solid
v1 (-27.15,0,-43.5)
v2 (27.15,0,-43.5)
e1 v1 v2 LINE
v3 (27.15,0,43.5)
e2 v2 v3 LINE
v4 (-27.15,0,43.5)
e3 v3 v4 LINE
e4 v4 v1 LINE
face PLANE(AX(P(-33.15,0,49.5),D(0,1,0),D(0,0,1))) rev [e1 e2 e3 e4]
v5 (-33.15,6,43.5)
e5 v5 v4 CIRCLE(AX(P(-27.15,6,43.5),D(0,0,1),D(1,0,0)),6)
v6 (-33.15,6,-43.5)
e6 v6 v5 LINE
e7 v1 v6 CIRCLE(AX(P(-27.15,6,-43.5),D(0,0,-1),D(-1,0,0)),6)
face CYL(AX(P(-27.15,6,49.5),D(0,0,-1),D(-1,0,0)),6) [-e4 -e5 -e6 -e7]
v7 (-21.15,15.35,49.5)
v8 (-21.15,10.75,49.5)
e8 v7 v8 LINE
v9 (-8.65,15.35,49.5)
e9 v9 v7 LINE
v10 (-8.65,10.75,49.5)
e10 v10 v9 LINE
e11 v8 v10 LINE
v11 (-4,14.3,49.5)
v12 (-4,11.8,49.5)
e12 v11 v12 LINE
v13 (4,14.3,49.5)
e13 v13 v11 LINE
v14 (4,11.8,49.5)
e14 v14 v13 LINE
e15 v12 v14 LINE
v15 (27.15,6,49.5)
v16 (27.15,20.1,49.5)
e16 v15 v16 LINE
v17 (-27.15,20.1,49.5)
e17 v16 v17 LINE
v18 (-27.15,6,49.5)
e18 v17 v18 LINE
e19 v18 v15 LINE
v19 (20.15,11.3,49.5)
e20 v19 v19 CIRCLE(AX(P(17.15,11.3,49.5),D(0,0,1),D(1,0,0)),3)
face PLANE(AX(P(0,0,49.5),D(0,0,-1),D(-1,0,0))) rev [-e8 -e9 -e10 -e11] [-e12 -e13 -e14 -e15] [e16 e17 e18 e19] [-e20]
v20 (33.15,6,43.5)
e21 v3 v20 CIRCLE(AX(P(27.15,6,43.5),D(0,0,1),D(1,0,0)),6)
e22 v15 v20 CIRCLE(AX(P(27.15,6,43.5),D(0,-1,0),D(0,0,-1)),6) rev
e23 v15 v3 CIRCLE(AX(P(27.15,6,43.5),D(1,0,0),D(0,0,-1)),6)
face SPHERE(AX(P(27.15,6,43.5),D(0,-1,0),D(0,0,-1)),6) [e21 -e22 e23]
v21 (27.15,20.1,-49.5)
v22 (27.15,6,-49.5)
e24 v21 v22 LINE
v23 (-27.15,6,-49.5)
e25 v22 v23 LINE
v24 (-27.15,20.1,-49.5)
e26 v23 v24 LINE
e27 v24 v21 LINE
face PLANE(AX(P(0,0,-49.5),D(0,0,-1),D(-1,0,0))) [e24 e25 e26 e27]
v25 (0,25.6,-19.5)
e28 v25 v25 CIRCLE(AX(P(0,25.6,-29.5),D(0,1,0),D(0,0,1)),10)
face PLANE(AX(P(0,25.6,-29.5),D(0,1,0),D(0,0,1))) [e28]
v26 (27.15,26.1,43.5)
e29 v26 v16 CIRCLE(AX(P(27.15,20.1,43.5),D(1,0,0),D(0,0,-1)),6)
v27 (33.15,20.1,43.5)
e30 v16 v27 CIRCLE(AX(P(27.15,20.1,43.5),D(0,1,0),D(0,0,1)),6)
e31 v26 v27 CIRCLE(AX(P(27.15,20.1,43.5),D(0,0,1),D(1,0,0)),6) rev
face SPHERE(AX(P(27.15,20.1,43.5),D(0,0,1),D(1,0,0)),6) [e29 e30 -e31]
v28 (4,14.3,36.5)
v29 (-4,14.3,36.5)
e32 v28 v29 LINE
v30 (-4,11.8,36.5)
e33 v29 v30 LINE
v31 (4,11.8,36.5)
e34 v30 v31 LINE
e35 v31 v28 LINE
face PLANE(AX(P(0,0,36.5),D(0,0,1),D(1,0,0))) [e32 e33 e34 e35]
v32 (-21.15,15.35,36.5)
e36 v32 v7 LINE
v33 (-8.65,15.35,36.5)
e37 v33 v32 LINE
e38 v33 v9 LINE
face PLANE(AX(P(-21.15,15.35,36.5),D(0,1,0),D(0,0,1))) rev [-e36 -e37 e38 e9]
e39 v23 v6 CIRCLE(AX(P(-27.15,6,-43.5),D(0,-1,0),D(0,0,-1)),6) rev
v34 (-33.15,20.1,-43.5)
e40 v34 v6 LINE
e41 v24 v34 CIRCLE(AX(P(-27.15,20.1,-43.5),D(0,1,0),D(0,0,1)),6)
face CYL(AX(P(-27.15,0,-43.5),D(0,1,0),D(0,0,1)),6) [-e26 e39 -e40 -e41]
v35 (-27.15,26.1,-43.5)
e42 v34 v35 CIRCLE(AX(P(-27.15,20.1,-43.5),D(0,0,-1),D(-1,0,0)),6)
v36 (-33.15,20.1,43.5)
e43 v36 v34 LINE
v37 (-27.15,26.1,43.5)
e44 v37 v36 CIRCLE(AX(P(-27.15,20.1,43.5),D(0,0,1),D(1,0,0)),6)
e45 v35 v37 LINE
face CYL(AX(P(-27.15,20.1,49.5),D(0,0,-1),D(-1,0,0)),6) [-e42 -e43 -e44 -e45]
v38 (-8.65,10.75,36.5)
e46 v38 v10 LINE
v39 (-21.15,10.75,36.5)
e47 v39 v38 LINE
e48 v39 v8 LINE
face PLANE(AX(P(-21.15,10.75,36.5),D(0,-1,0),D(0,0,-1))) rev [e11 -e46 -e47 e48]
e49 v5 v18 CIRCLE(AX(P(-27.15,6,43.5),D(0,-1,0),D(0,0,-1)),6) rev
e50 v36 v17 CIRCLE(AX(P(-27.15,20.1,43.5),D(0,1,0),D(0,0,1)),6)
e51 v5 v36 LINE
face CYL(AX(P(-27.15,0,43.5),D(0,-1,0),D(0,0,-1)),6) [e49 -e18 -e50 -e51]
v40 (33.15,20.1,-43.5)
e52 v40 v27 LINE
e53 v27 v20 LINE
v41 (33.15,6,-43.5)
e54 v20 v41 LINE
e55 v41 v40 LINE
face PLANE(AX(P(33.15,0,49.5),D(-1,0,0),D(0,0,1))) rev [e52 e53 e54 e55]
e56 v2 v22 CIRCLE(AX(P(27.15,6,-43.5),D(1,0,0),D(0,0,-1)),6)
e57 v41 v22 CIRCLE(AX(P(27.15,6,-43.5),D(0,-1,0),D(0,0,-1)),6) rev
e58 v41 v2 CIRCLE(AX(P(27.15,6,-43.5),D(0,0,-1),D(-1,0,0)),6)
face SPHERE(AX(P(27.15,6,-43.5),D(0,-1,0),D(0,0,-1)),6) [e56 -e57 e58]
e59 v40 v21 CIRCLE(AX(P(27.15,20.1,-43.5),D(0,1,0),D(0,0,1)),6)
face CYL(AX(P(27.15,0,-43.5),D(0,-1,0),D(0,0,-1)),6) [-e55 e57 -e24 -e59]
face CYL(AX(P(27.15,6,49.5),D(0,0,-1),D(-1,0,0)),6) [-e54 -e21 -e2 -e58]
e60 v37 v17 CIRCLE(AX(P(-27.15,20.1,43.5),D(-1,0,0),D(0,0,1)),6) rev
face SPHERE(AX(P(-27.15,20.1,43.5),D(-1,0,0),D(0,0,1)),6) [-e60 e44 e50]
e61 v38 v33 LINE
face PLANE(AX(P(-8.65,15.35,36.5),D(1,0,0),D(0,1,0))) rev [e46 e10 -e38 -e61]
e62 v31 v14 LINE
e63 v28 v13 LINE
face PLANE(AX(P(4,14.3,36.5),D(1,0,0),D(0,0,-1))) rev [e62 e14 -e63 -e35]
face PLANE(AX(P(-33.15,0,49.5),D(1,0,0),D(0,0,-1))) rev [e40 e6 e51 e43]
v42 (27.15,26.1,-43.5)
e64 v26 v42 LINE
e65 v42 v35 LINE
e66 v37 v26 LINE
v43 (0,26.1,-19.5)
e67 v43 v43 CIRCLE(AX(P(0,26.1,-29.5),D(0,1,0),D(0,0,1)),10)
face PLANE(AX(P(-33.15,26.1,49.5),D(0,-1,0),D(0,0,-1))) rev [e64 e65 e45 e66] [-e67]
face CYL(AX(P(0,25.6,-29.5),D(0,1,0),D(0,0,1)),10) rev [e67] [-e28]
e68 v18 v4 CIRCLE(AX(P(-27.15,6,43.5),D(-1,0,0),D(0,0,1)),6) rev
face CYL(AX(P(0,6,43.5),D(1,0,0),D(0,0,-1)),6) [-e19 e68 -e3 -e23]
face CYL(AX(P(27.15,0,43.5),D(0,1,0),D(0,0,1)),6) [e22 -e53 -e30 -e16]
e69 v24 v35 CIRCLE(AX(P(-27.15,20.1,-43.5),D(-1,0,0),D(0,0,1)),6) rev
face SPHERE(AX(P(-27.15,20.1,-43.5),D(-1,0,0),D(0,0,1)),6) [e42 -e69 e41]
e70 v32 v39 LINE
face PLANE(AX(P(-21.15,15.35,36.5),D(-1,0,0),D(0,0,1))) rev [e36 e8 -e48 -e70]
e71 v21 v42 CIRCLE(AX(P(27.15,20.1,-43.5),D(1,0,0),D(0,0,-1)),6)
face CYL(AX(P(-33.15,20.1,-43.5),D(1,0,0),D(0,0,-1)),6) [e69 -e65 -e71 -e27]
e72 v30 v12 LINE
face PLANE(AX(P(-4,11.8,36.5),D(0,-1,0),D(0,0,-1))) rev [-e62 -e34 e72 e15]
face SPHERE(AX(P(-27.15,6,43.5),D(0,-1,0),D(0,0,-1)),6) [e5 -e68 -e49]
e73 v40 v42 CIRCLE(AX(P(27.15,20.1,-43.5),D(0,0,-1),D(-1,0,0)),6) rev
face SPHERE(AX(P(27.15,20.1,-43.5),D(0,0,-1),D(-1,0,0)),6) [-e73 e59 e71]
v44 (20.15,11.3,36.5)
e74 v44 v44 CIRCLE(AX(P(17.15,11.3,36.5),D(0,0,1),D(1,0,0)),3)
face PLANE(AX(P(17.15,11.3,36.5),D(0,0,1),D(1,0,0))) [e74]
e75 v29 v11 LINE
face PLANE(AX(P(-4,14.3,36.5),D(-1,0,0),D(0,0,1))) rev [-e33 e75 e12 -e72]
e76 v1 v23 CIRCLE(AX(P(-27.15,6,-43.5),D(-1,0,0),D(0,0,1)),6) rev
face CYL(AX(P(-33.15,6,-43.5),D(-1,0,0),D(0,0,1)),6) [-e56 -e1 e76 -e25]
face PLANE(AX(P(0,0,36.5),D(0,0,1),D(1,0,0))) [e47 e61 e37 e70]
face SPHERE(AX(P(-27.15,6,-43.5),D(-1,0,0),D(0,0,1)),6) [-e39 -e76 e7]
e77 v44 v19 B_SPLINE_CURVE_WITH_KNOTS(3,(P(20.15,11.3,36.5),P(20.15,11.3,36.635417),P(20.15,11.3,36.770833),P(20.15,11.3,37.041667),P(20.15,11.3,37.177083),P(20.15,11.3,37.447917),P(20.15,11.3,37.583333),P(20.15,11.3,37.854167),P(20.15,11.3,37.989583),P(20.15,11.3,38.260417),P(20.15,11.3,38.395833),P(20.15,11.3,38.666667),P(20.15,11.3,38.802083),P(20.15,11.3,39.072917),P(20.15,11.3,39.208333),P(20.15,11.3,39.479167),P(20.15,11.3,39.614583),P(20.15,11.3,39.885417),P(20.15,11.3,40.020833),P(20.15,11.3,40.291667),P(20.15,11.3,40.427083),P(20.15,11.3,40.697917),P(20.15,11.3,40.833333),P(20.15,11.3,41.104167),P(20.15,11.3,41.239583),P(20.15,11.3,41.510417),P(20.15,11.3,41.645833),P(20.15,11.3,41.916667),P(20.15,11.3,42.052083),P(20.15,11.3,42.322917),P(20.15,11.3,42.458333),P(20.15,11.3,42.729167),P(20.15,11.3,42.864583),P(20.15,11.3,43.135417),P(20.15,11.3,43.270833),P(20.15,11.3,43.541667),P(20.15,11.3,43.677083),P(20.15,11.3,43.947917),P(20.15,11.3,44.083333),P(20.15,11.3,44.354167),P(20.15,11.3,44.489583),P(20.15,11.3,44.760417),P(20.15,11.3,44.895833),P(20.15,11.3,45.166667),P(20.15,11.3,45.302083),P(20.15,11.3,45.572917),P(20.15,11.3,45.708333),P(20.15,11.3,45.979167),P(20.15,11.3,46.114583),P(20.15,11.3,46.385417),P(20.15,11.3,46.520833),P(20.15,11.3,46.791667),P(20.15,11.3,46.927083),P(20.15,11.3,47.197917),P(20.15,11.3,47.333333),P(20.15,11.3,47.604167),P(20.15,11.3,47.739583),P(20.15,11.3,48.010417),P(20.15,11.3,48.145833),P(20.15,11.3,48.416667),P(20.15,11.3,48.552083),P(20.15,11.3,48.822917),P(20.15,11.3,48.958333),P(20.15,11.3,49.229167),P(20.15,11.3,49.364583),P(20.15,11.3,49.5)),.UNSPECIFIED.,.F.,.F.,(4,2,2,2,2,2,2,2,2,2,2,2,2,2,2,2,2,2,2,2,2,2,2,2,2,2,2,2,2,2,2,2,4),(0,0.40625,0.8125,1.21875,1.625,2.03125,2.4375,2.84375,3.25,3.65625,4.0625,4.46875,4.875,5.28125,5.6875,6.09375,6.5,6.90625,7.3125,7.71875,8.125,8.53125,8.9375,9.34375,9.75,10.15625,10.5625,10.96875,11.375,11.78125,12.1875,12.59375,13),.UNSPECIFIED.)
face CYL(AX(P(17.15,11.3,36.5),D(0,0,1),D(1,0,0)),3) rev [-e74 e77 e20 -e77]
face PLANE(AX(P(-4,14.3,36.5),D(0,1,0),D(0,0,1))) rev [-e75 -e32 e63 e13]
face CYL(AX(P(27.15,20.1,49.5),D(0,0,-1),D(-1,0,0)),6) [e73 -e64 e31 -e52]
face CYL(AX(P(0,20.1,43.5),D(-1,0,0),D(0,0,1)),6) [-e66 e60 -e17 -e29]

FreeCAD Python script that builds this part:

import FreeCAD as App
import Part
import Sketcher
from FreeCAD import Vector


def edges_at(feature, points):
    """Names of the edges that pass closest to the given points."""
    edges = feature.Shape.Edges
    near = lambda p: min(range(len(edges)), key=lambda i: edges[i].distToShape(Part.Vertex(*p))[0])
    return sorted({f"Edge{near(p) + 1}" for p in points})

doc = App.newDocument("Part")
body = doc.addObject("PartDesign::Body", "Body")

sketch1 = body.newObject("Sketcher::SketchObject", "Sketch")
sketch1.AttachmentSupport = (doc.getObject("XY_Plane"), [""])
sketch1.MapMode = "FlatFace"
sketch1.addGeometry(Part.LineSegment(Vector(-33.15, 26.1, 0), Vector(-33.15, 0, 0)), False)
sketch1.addGeometry(Part.LineSegment(Vector(-33.15, 0, 0), Vector(33.15, 0, 0)), False)
sketch1.addGeometry(Part.LineSegment(Vector(33.15, 0, 0), Vector(33.15, 26.1, 0)), False)
sketch1.addGeometry(Part.LineSegment(Vector(33.15, 26.1, 0), Vector(-33.15, 26.1, 0)), False)
sketch1.addConstraint(Sketcher.Constraint("Coincident", 0, 2, 1, 1))
sketch1.addConstraint(Sketcher.Constraint("Coincident", 1, 2, 2, 1))
sketch1.addConstraint(Sketcher.Constraint("Coincident", 2, 2, 3, 1))
sketch1.addConstraint(Sketcher.Constraint("Coincident", 3, 2, 0, 1))
sketch1.addConstraint(Sketcher.Constraint("Vertical", 0))
sketch1.addConstraint(Sketcher.Constraint("Horizontal", 1))
sketch1.addConstraint(Sketcher.Constraint("Vertical", 2))
sketch1.addConstraint(Sketcher.Constraint("Horizontal", 3))
sketch1.addConstraint(Sketcher.Constraint("Symmetric", 0, 2, 1, 2, -1, 1))
sketch1.addConstraint(Sketcher.Constraint("DistanceX", 1, 1, 1, 2, 66.3))
sketch1.addConstraint(Sketcher.Constraint("DistanceY", 0, 2, 0, 1, 26.1))
pad1 = body.newObject("PartDesign::Pad", "Pad")
pad1.Profile = sketch1
pad1.Length = 99
pad1.Midplane = True

sketch2 = body.newObject("Sketcher::SketchObject", "Sketch001")
sketch2.AttachmentSupport = (doc.getObject("XY_Plane"), [""])
sketch2.MapMode = "FlatFace"
sketch2.AttachmentOffset = App.Placement(Vector(0, 0, 49.5), App.Rotation())
sketch2.addGeometry(Part.Circle(Vector(17.15, 11.3, 0), Vector(0, 0, 1), 3), False)
sketch2.addGeometry(Part.LineSegment(Vector(-21.15, 15.35, 0), Vector(-21.15, 10.75, 0)), False)
sketch2.addGeometry(Part.LineSegment(Vector(-21.15, 10.75, 0), Vector(-8.65, 10.75, 0)), False)
sketch2.addGeometry(Part.LineSegment(Vector(-8.65, 10.75, 0), Vector(-8.65, 15.35, 0)), False)
sketch2.addGeometry(Part.LineSegment(Vector(-8.65, 15.35, 0), Vector(-21.15, 15.35, 0)), False)
sketch2.addGeometry(Part.LineSegment(Vector(-4, 14.3, 0), Vector(-4, 11.8, 0)), False)
sketch2.addGeometry(Part.LineSegment(Vector(-4, 11.8, 0), Vector(4, 11.8, 0)), False)
sketch2.addGeometry(Part.LineSegment(Vector(4, 11.8, 0), Vector(4, 14.3, 0)), False)
sketch2.addGeometry(Part.LineSegment(Vector(4, 14.3, 0), Vector(-4, 14.3, 0)), False)
sketch2.addConstraint(Sketcher.Constraint("Coincident", 1, 2, 2, 1))
sketch2.addConstraint(Sketcher.Constraint("Coincident", 2, 2, 3, 1))
sketch2.addConstraint(Sketcher.Constraint("Coincident", 3, 2, 4, 1))
sketch2.addConstraint(Sketcher.Constraint("Coincident", 4, 2, 1, 1))
sketch2.addConstraint(Sketcher.Constraint("Coincident", 5, 2, 6, 1))
sketch2.addConstraint(Sketcher.Constraint("Coincident", 6, 2, 7, 1))
sketch2.addConstraint(Sketcher.Constraint("Coincident", 7, 2, 8, 1))
sketch2.addConstraint(Sketcher.Constraint("Coincident", 8, 2, 5, 1))
sketch2.addConstraint(Sketcher.Constraint("Vertical", 1))
sketch2.addConstraint(Sketcher.Constraint("Horizontal", 2))
sketch2.addConstraint(Sketcher.Constraint("Vertical", 3))
sketch2.addConstraint(Sketcher.Constraint("Horizontal", 4))
sketch2.addConstraint(Sketcher.Constraint("Vertical", 5))
sketch2.addConstraint(Sketcher.Constraint("Horizontal", 6))
sketch2.addConstraint(Sketcher.Constraint("Vertical", 7))
sketch2.addConstraint(Sketcher.Constraint("Horizontal", 8))
sketch2.addConstraint(Sketcher.Constraint("Diameter", 0, 6.0))
sketch2.addConstraint(Sketcher.Constraint("DistanceX", 6, 1, 6, 2, 8.0))
sketch2.addConstraint(Sketcher.Constraint("DistanceX", 2, 1, 2, 2, 12.5))
sketch2.addConstraint(Sketcher.Constraint("DistanceY", 1, 2, 1, 1, 4.6))
sketch2.addConstraint(Sketcher.Constraint("DistanceY", 5, 2, 5, 1, 2.5))
sketch2.addConstraint(Sketcher.Constraint("DistanceX", 5, 2, -1, 1, 4.0))
sketch2.addConstraint(Sketcher.Constraint("DistanceY", 0, 3, 7, 2, 3.0))
sketch2.addConstraint(Sketcher.Constraint("DistanceY", -1, 1, 0, 3, 11.3))
sketch2.addConstraint(Sketcher.Constraint("DistanceX", 1, 2, 0, 3, 38.3))
sketch2.addConstraint(Sketcher.Constraint("DistanceX", -1, 1, 0, 3, 17.15))
sketch2.addConstraint(Sketcher.Constraint("DistanceY", -1, 1, 1, 2, 10.75))
pocket1 = body.newObject("PartDesign::Pocket", "Pocket")
pocket1.Profile = sketch2
pocket1.Length = 13

sketch3 = body.newObject("Sketcher::SketchObject", "Sketch002")
sketch3.AttachmentSupport = (doc.getObject("XZ_Plane"), [""])
sketch3.MapMode = "FlatFace"
sketch3.AttachmentOffset = App.Placement(Vector(0, 0, -26.1), App.Rotation())
sketch3.addGeometry(Part.Circle(Vector(0, -29.5, 0), Vector(0, 0, 1), 10), False)
sketch3.addConstraint(Sketcher.Constraint("PointOnObject", 0, 3, -2))
sketch3.addConstraint(Sketcher.Constraint("Diameter", 0, 20.0))
sketch3.addConstraint(Sketcher.Constraint("DistanceY", 0, 3, -1, 1, 29.5))
pocket2 = body.newObject("PartDesign::Pocket", "Pocket001")
pocket2.Profile = sketch3
pocket2.Length = 0.5
pocket2.Reversed = True
doc.recompute()

fillet = body.newObject("PartDesign::Fillet", "Fillet")
fillet.Base = (pocket2, edges_at(pocket2, [
    (33.15, 13.05, 49.5),
    (0, 26.1, 49.5),
    (-33.15, 13.05, 49.5),
    (0, 26.1, -49.5),
    (33.15, 13.05, -49.5),
    (0, 0, -49.5),
    (-33.15, 13.05, -49.5),
    (-33.15, 26.1, 0),
    (33.15, 26.1, 0),
    (33.15, 0, 0),
    (-33.15, 0, 0),
    (0, 0, 49.5),
]))
fillet.Radius = 6

doc.recompute()
